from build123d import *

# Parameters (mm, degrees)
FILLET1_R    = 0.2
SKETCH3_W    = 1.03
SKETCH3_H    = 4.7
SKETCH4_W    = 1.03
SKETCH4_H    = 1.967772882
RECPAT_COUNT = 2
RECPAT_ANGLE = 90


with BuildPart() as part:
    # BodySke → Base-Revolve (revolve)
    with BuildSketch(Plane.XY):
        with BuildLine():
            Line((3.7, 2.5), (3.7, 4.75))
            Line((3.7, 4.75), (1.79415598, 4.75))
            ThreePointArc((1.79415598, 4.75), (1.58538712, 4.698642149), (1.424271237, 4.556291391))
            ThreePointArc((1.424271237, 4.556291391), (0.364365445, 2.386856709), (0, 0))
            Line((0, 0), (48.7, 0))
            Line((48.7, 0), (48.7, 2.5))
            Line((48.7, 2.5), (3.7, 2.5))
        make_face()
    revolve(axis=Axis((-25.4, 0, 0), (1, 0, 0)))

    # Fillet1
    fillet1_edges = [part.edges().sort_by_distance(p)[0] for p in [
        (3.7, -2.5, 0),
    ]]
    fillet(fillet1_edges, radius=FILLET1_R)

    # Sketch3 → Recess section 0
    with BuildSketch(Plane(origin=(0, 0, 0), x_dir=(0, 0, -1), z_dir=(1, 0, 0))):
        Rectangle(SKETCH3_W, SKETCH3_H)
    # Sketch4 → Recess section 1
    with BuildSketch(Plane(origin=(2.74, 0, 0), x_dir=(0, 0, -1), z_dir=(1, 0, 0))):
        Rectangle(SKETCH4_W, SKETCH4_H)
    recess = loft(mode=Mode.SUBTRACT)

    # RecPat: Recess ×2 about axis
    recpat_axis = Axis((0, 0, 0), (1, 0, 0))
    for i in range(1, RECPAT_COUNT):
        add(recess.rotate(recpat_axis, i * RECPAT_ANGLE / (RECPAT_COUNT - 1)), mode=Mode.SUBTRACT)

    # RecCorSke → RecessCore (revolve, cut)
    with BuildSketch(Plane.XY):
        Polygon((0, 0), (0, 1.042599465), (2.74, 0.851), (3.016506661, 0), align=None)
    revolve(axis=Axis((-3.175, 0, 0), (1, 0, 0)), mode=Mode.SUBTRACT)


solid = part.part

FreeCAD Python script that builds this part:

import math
import FreeCAD as App
import Part
import Sketcher
Q = App.Units.Quantity


def edges_at(feature, points):
    """Names of the edges that pass closest to the given points."""
    edges = feature.Shape.Edges
    near = lambda p: min(range(len(edges)), key=lambda i: edges[i].distToShape(Part.Vertex(*p))[0])
    return sorted({f"Edge{near(p) + 1}" for p in points})

doc = App.newDocument("Part")
params = doc.addObject("Spreadsheet::Sheet", "Params")
for row, (alias, value) in enumerate([
    ("sketch1_radius", "8 mm"),
    ("sketch1_width", "45 mm"),
    ("sketch1_radius2", "0.45 mm"),
    ("sketch1_width2", "48.7 mm"),
    ("sketch1_height", "2.5 mm"),
    ("revolution_angle", "360 deg"),
    ("fillet_radius", "0.2 mm"),
    ("sketch2_width", "4.7 mm"),
    ("sketch2_height", "1.03 mm"),
    ("sketch3_height", "1.03 mm"),
    ("groove_angle", "360 deg"),
], start=1):
    params.set(f"A{row}", alias)
    params.set(f"B{row}", "=" + value)
    params.setAlias(f"B{row}", alias)

body = doc.addObject("PartDesign::Body", "Body")

# Sketch on XY plane
sketch1 = body.newObject("Sketcher::SketchObject", "Sketch")
sketch1.AttachmentSupport = (doc.getObject("XY_Plane"), [""])
sketch1.MapMode = "FlatFace"
sketch1.addGeometry(Part.LineSegment(App.Vector(3.7, 2.5, 0), App.Vector(3.7, 4.75, 0)), False)
sketch1.addGeometry(Part.LineSegment(App.Vector(3.7, 4.75, 0), App.Vector(1.79, 4.75, 0)), False)
sketch1.addGeometry(Part.ArcOfCircle(Part.Circle(App.Vector(1.79, 4.3, 0), App.Vector(0, 0, 1), 0.45), math.radians(90), math.radians(145)), False)
sketch1.addGeometry(Part.ArcOfCircle(Part.Circle(App.Vector(8, 0, 0), App.Vector(0, 0, 1), 8), math.radians(145), math.radians(180)), False)
sketch1.addGeometry(Part.LineSegment(App.Vector(0, 0, 0), App.Vector(48.7, 0, 0)), False)
sketch1.addGeometry(Part.LineSegment(App.Vector(48.7, 0, 0), App.Vector(48.7, 2.5, 0)), False)
sketch1.addGeometry(Part.LineSegment(App.Vector(48.7, 2.5, 0), App.Vector(3.7, 2.5, 0)), False)
sketch1.addConstraint(Sketcher.Constraint("Coincident", 0, 2, 1, 1))
sketch1.addConstraint(Sketcher.Constraint("Tangent", 1, 2, 2, 1))
sketch1.addConstraint(Sketcher.Constraint("Tangent", 2, 2, 3, 1))
sketch1.addConstraint(Sketcher.Constraint("Coincident", 3, 2, 4, 1))
sketch1.addConstraint(Sketcher.Constraint("Coincident", 4, 2, 5, 1))
sketch1.addConstraint(Sketcher.Constraint("Coincident", 5, 2, 6, 1))
sketch1.addConstraint(Sketcher.Constraint("Coincident", 6, 2, 0, 1))
sketch1.addConstraint(Sketcher.Constraint("Vertical", 0))
sketch1.addConstraint(Sketcher.Constraint("Horizontal", 1))
sketch1.addConstraint(Sketcher.Constraint("Horizontal", 4))
sketch1.addConstraint(Sketcher.Constraint("Vertical", 5))
sketch1.addConstraint(Sketcher.Constraint("Horizontal", 6))
sketch1.addConstraint(Sketcher.Constraint("Coincident", 3, 2, -1, 1))
sketch1.addConstraint(Sketcher.Constraint("PointOnObject", 3, 3, -1))
sketch1.addConstraint(Sketcher.Constraint("Radius", 3, 8.0))
sketch1.addConstraint(Sketcher.Constraint("DistanceX", 6, 2, 6, 1, 45.0))
sketch1.addConstraint(Sketcher.Constraint("Radius", 2, 0.45))
sketch1.addConstraint(Sketcher.Constraint("DistanceX", 4, 1, 4, 2, 48.7))
sketch1.addConstraint(Sketcher.Constraint("DistanceY", 5, 1, 5, 2, 2.5))
sketch1.addConstraint(Sketcher.Constraint("DistanceY", 0, 1, 0, 2, 2.25))
sketch1.setExpression("Constraints[14]", "Params.sketch1_radius")
sketch1.setExpression("Constraints[15]", "Params.sketch1_width")
sketch1.setExpression("Constraints[16]", "Params.sketch1_radius2")
sketch1.setExpression("Constraints[17]", "Params.sketch1_width2")
sketch1.setExpression("Constraints[18]", "Params.sketch1_height")
revolution = body.newObject("PartDesign::Revolution", "Revolution")
revolution.Profile = sketch1
revolution.ReferenceAxis = (sketch1, ["H_Axis"])
revolution.setExpression("Angle", "Params.revolution_angle")
doc.recompute()

fillet = body.newObject("PartDesign::Fillet", "Fillet")
fillet.Base = (revolution, edges_at(revolution, [(3.7, -2.5, 0)]))
fillet.setExpression("Radius", "Params.fillet_radius")

# Sketch on YZ plane
sketch2 = body.newObject("Sketcher::SketchObject", "Sketch001")
sketch2.AttachmentSupport = (doc.getObject("YZ_Plane"), [""])
sketch2.MapMode = "FlatFace"
sketch2.addGeometry(Part.LineSegment(App.Vector(2.4, 0.5, 0), App.Vector(-2.4, 0.5, 0)), False)
sketch2.addGeometry(Part.LineSegment(App.Vector(-2.4, 0.5, 0), App.Vector(-2.4, -0.5, 0)), False)
sketch2.addGeometry(Part.LineSegment(App.Vector(-2.4, -0.5, 0), App.Vector(2.4, -0.5, 0)), False)
sketch2.addGeometry(Part.LineSegment(App.Vector(2.4, -0.5, 0), App.Vector(2.4, 0.5, 0)), False)
sketch2.addConstraint(Sketcher.Constraint("Coincident", 0, 2, 1, 1))
sketch2.addConstraint(Sketcher.Constraint("Coincident", 1, 2, 2, 1))
sketch2.addConstraint(Sketcher.Constraint("Coincident", 2, 2, 3, 1))
sketch2.addConstraint(Sketcher.Constraint("Coincident", 3, 2, 0, 1))
sketch2.addConstraint(Sketcher.Constraint("Horizontal", 0))
sketch2.addConstraint(Sketcher.Constraint("Vertical", 1))
sketch2.addConstraint(Sketcher.Constraint("Horizontal", 2))
sketch2.addConstraint(Sketcher.Constraint("Vertical", 3))
sketch2.addConstraint(Sketcher.Constraint("Symmetric", 0, 2, 2, 2, -1, 1))
sketch2.addConstraint(Sketcher.Constraint("DistanceX", 0, 2, 0, 1, 4.7))
sketch2.addConstraint(Sketcher.Constraint("DistanceY", 1, 2, 1, 1, 1.03))
sketch2.setExpression("Constraints[9]", "Params.sketch2_width")
sketch2.setExpression("Constraints[10]", "Params.sketch2_height")

# Sketch on YZ plane
sketch3 = body.newObject("Sketcher::SketchObject", "Sketch002")
sketch3.AttachmentSupport = (doc.getObject("YZ_Plane"), [""])
sketch3.MapMode = "FlatFace"
sketch3.AttachmentOffset = App.Placement(App.Vector(0, 0, 2.74), App.Rotation())
sketch3.addGeometry(Part.LineSegment(App.Vector(1, 0.5, 0), App.Vector(-1, 0.5, 0)), False)
sketch3.addGeometry(Part.LineSegment(App.Vector(-1, 0.5, 0), App.Vector(-1, -0.5, 0)), False)
sketch3.addGeometry(Part.LineSegment(App.Vector(-1, -0.5, 0), App.Vector(1, -0.5, 0)), False)
sketch3.addGeometry(Part.LineSegment(App.Vector(1, -0.5, 0), App.Vector(1, 0.5, 0)), False)
sketch3.addConstraint(Sketcher.Constraint("Coincident", 0, 2, 1, 1))
sketch3.addConstraint(Sketcher.Constraint("Coincident", 1, 2, 2, 1))
sketch3.addConstraint(Sketcher.Constraint("Coincident", 2, 2, 3, 1))
sketch3.addConstraint(Sketcher.Constraint("Coincident", 3, 2, 0, 1))
sketch3.addConstraint(Sketcher.Constraint("Horizontal", 0))
sketch3.addConstraint(Sketcher.Constraint("Vertical", 1))
sketch3.addConstraint(Sketcher.Constraint("Horizontal", 2))
sketch3.addConstraint(Sketcher.Constraint("Vertical", 3))
sketch3.addConstraint(Sketcher.Constraint("Symmetric", 0, 2, 2, 2, -1, 1))
sketch3.addConstraint(Sketcher.Constraint("DistanceY", 1, 2, 1, 1, 1.03))
sketch3.addConstraint(Sketcher.Constraint("DistanceX", 0, 2, 0, 1, 1.967773))
sketch3.setExpression("Constraints[9]", "Params.sketch3_height")

subtractiveloft = body.newObject("PartDesign::SubtractiveLoft", "SubtractiveLoft")
subtractiveloft.Profile = sketch2
subtractiveloft.Sections = [sketch3]
doc.recompute()

polarpattern = body.newObject("PartDesign::PolarPattern", "PolarPattern")
polarpattern.Originals = [subtractiveloft]
polarpattern.Axis = (doc.getObject("X_Axis"), [""])
polarpattern.Angle = 90
polarpattern.Occurrences = 2
body.Tip = polarpattern

# Sketch on XY plane
sketch4 = body.newObject("Sketcher::SketchObject", "Sketch003")
sketch4.AttachmentSupport = (doc.getObject("XY_Plane"), [""])
sketch4.MapMode = "FlatFace"
sketch4.addGeometry(Part.LineSegment(App.Vector(0, 1, 0), App.Vector(0, 0, 0)), False)
sketch4.addGeometry(Part.LineSegment(App.Vector(0, 0, 0), App.Vector(3, 0, 0)), False)
sketch4.addGeometry(Part.LineSegment(App.Vector(3, 0, 0), App.Vector(2.7, 0.9, 0)), False)
sketch4.addGeometry(Part.LineSegment(App.Vector(2.7, 0.9, 0), App.Vector(0, 1, 0)), False)
sketch4.addConstraint(Sketcher.Constraint("Coincident", 0, 2, 1, 1))
sketch4.addConstraint(Sketcher.Constraint("Coincident", 1, 2, 2, 1))
sketch4.addConstraint(Sketcher.Constraint("Coincident", 2, 2, 3, 1))
sketch4.addConstraint(Sketcher.Constraint("Coincident", 3, 2, 0, 1))
sketch4.addConstraint(Sketcher.Constraint("Vertical", 0))
sketch4.addConstraint(Sketcher.Constraint("Horizontal", 1))
sketch4.addConstraint(Sketcher.Constraint("Coincident", 0, 2, -1, 1))
sketch4.addConstraint(Sketcher.Constraint("Angle", 2, Q("108 deg")))
sketch4.addConstraint(Sketcher.Constraint("Angle", 3, Q("176 deg")))
sketch4.addConstraint(Sketcher.Constraint("DistanceX", -1, 1, 2, 2, 2.74))
sketch4.addConstraint(Sketcher.Constraint("DistanceY", 0, 2, 0, 1, 1.042599))
groove = body.newObject("PartDesign::Groove", "Groove")
groove.Profile = sketch4
groove.ReferenceAxis = (sketch4, ["H_Axis"])
groove.setExpression("Angle", "Params.groove_angle")

doc.recompute()
